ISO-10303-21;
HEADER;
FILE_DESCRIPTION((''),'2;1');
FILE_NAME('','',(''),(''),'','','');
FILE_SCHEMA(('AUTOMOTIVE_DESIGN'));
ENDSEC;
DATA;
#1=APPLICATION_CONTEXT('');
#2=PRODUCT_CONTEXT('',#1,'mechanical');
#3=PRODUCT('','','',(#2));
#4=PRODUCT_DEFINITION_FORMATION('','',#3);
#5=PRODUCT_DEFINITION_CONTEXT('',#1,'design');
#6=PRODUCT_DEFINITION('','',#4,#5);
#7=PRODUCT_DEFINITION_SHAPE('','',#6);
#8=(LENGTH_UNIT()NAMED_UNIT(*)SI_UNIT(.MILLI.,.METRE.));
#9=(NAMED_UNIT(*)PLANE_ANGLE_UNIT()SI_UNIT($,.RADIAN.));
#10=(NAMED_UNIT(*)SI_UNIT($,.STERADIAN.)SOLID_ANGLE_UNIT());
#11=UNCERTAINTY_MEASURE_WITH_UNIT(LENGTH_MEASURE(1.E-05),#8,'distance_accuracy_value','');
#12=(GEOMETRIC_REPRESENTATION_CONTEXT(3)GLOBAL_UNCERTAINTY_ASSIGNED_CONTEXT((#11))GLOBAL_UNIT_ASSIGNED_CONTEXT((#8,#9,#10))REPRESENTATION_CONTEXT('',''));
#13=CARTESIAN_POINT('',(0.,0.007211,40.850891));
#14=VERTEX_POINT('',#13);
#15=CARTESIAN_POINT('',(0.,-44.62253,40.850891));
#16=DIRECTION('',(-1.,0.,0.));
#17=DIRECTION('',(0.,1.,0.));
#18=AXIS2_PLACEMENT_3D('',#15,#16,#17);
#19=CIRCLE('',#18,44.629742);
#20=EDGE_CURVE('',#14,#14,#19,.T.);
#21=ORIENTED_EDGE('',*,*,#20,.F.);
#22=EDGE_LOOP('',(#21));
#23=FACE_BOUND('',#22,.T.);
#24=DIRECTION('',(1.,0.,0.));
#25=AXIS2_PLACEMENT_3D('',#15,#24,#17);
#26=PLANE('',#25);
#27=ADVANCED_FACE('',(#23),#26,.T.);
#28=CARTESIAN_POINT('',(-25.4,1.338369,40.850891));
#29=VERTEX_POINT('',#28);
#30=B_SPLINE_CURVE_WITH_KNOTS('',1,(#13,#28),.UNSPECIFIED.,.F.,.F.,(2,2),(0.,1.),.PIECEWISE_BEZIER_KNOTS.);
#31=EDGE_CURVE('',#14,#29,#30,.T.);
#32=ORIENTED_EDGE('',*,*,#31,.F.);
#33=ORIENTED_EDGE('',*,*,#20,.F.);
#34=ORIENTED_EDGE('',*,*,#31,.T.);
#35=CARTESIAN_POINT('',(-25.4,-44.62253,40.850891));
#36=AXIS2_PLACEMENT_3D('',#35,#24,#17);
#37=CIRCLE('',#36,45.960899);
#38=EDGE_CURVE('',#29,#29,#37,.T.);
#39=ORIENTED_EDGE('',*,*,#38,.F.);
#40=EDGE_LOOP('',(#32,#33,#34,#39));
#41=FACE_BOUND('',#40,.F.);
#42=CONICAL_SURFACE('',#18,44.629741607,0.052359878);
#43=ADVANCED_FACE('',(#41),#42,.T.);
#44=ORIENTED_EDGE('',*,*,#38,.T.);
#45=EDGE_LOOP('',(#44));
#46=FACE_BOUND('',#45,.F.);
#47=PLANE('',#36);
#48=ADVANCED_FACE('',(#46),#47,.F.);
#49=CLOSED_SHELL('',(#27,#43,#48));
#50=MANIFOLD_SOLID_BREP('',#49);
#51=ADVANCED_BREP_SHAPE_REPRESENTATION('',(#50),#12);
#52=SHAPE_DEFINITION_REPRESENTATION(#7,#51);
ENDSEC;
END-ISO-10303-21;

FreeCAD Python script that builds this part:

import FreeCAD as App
import Part
import Sketcher
Q = App.Units.Quantity

doc = App.newDocument("Part")
body = doc.addObject("PartDesign::Body", "Body")

sketch1 = doc.addObject("Sketcher::SketchObject", "Sketch")
body.addObject(sketch1)
sketch1.AttachmentSupport = (doc.YZ_Plane, [""])
sketch1.MapMode = "FlatFace"
sketch1.addGeometry(Part.Circle(App.Vector(-44.62253, 40.850891, 0), App.Vector(0, 0, 1), 44.629742), False)
sketch1.addConstraint([
    Sketcher.Constraint("Diameter", 0, Q("89.259483 mm")),
    Sketcher.Constraint("DistanceX", 0, 3, -1, 1, Q("44.62253 mm")),
    Sketcher.Constraint("DistanceY", -1, 1, 0, 3, Q("40.850891 mm")),
])
pad1 = doc.addObject("PartDesign::Pad", "Pad")
body.addObject(pad1)
pad1.Profile = sketch1
pad1.Length = Q("1 in")
pad1.Reversed = True
pad1.TaperAngle = 3

doc.recompute()
